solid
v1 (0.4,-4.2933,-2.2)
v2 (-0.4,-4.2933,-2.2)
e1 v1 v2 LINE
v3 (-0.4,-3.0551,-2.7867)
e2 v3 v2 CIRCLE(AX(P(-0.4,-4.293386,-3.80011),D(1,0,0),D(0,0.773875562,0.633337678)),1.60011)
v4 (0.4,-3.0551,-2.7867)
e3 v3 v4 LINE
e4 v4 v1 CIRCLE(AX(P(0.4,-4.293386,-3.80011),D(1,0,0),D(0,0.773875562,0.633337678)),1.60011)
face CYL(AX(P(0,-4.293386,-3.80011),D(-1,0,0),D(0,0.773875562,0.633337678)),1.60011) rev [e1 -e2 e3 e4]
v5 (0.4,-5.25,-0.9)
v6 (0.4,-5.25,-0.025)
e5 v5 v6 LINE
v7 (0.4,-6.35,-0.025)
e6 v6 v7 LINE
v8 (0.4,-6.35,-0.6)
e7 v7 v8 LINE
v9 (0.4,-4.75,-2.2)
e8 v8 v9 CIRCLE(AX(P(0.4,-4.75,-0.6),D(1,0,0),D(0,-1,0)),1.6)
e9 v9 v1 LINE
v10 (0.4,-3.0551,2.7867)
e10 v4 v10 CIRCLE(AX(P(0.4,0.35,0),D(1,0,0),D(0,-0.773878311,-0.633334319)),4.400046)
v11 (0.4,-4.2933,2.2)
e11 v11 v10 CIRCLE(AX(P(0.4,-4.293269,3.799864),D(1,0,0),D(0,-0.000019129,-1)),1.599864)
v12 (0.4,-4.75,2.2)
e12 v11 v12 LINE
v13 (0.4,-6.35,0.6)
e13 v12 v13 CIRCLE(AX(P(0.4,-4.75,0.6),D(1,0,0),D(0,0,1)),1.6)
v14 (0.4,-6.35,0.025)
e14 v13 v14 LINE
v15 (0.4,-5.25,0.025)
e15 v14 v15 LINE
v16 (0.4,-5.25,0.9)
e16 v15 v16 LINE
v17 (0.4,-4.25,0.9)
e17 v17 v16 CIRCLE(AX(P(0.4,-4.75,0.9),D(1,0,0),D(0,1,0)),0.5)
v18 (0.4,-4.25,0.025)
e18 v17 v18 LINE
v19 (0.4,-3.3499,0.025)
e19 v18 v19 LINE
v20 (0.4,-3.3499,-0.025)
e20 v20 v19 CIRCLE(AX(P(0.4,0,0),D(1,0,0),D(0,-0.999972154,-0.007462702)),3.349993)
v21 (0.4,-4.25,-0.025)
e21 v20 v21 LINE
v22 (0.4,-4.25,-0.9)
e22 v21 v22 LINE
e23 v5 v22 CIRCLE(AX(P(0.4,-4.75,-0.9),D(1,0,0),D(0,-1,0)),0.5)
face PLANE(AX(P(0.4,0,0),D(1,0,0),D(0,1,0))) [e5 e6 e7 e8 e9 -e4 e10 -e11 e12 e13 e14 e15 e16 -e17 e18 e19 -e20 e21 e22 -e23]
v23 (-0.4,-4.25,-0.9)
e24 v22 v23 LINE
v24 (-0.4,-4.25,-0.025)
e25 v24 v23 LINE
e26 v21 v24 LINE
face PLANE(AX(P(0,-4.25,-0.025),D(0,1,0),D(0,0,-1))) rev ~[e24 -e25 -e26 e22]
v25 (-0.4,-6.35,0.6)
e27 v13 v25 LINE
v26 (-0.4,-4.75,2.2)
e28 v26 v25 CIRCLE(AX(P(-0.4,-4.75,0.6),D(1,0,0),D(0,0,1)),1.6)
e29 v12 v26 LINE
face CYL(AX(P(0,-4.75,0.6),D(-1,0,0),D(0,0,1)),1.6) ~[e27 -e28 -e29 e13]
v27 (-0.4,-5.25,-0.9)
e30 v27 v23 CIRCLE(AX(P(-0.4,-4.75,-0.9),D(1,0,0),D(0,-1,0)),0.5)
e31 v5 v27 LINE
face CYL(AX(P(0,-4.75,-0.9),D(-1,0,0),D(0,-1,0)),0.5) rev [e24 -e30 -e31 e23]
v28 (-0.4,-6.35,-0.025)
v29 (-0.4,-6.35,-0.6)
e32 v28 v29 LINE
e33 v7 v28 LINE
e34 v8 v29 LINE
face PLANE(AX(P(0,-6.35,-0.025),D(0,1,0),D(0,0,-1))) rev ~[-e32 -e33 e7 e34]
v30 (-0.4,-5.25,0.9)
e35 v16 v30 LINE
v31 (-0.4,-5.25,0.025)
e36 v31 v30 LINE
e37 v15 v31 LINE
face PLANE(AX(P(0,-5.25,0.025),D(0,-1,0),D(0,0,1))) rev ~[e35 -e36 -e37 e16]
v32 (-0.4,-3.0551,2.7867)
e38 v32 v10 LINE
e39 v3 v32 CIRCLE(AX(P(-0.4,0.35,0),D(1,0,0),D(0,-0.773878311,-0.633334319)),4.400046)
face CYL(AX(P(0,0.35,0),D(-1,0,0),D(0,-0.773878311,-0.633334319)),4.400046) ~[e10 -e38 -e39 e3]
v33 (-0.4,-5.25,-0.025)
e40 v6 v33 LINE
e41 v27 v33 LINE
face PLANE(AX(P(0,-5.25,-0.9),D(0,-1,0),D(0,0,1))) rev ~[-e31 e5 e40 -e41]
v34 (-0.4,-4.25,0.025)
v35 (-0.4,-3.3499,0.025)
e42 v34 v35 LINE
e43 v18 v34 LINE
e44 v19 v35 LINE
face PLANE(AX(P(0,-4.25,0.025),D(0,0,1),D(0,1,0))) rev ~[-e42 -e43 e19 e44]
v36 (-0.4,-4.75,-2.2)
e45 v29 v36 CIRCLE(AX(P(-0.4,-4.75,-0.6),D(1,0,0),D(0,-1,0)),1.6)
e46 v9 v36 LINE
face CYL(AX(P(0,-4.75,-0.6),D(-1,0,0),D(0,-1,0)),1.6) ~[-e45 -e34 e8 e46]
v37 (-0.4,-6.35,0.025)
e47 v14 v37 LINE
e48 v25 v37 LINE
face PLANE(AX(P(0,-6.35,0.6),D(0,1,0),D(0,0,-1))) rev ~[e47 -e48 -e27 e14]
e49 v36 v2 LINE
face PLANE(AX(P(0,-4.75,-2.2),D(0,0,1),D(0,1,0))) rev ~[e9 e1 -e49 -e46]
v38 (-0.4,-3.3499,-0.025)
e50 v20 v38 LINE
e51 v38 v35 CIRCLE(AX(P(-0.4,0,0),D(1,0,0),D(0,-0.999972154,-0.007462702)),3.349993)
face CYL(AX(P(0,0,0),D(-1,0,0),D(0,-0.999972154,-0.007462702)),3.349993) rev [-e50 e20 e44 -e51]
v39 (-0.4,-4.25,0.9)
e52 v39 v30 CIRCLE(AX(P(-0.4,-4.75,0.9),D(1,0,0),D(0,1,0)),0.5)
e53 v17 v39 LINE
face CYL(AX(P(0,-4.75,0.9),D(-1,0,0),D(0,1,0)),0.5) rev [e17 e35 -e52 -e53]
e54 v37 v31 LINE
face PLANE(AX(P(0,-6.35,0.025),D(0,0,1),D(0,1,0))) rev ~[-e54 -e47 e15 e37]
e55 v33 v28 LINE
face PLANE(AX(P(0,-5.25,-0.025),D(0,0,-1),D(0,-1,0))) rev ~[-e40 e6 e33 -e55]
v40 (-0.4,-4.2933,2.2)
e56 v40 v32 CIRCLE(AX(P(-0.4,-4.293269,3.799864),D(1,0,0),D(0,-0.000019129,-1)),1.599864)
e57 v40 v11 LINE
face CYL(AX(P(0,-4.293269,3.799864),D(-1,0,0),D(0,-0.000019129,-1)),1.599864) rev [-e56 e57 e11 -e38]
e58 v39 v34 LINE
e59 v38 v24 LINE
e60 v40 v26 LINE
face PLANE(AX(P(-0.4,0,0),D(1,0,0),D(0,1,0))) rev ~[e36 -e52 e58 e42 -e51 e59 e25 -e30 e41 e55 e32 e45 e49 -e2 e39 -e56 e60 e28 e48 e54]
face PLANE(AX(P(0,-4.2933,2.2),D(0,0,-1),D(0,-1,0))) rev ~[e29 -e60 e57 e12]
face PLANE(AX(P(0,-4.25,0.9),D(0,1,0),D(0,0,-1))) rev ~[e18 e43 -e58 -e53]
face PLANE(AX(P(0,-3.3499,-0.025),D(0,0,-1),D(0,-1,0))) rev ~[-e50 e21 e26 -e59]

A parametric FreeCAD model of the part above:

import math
import FreeCAD as App
import Part
import Sketcher
from FreeCAD import Vector

doc = App.newDocument("Part")
body = doc.addObject("PartDesign::Body", "Body")

# Sketch on YZ plane
sketch1 = doc.addObject("Sketcher::SketchObject", "Sketch")
body.addObject(sketch1)
sketch1.AttachmentSupport = (doc.YZ_Plane, [""])
sketch1.MapMode = "FlatFace"
sketch1.addGeometry([
    Part.ArcOfCircle(Part.Circle(Vector(-4.29, -3.8, 0), Vector(0, 0, 1), 1.6), math.radians(39), math.radians(90)),  # 0
    Part.ArcOfCircle(Part.Circle(Vector(0.35, 0, 0), Vector(0, 0, 1), 4.4), math.radians(-141), math.radians(141)),  # 1
    Part.ArcOfCircle(Part.Circle(Vector(-4.29, 3.8, 0), Vector(0, 0, 1), 1.6), math.radians(-90), math.radians(-39)),  # 2
    Part.LineSegment(Vector(-4.29, 2.2, 0), Vector(-4.75, 2.2, 0)),  # 3
    Part.ArcOfCircle(Part.Circle(Vector(-4.75, 0.6, 0), Vector(0, 0, 1), 1.6), math.radians(90), math.radians(180)),  # 4
    Part.LineSegment(Vector(-6.35, 0.6, 0), Vector(-6.35, 0.03, 0)),  # 5
    Part.LineSegment(Vector(-6.35, 0.03, 0), Vector(-5.25, 0.03, 0)),  # 6
    Part.LineSegment(Vector(-5.25, 0.03, 0), Vector(-5.25, 0.9, 0)),  # 7
    Part.ArcOfCircle(Part.Circle(Vector(-4.75, 0.9, 0), Vector(0, 0, 1), 0.5), math.radians(0), math.radians(180)),  # 8
    Part.LineSegment(Vector(-4.25, 0.9, 0), Vector(-4.25, 0.03, 0)),  # 9
    Part.LineSegment(Vector(-4.25, 0.03, 0), Vector(-3.35, 0.03, 0)),  # 10
    Part.ArcOfCircle(Part.Circle(Vector(0, 0, 0), Vector(0, 0, 1), 3.35), math.radians(-180), math.radians(180)),  # 11
    Part.LineSegment(Vector(-3.35, -0.03, 0), Vector(-4.25, -0.03, 0)),  # 12
    Part.LineSegment(Vector(-4.25, -0.03, 0), Vector(-4.25, -0.9, 0)),  # 13
    Part.ArcOfCircle(Part.Circle(Vector(-4.75, -0.9, 0), Vector(0, 0, 1), 0.5), math.radians(180), math.radians(360)),  # 14
    Part.LineSegment(Vector(-5.25, -0.9, 0), Vector(-5.25, -0.03, 0)),  # 15
    Part.LineSegment(Vector(-5.25, -0.03, 0), Vector(-6.35, -0.03, 0)),  # 16
    Part.LineSegment(Vector(-6.35, -0.03, 0), Vector(-6.35, -0.6, 0)),  # 17
    Part.ArcOfCircle(Part.Circle(Vector(-4.75, -0.6, 0), Vector(0, 0, 1), 1.6), math.radians(180), math.radians(270)),  # 18
    Part.LineSegment(Vector(-4.75, -2.2, 0), Vector(-4.29, -2.2, 0)),  # 19
], False)
sketch1.addConstraint([
    Sketcher.Constraint("Tangent", 0, 1, 1, 1),
    Sketcher.Constraint("Tangent", 1, 2, 2, 2),
    Sketcher.Constraint("Tangent", 2, 1, 3, 1),
    Sketcher.Constraint("Tangent", 3, 2, 4, 1),
    Sketcher.Constraint("Tangent", 4, 2, 5, 1),
    Sketcher.Constraint("Coincident", 5, 2, 6, 1),
    Sketcher.Constraint("Coincident", 6, 2, 7, 1),
    Sketcher.Constraint("Tangent", 7, 2, 8, 2),
    Sketcher.Constraint("Tangent", 8, 1, 9, 1),
    Sketcher.Constraint("Coincident", 9, 2, 10, 1),
    Sketcher.Constraint("Coincident", 10, 2, 11, 2),
    Sketcher.Constraint("Coincident", 11, 1, 12, 1),
    Sketcher.Constraint("Coincident", 12, 2, 13, 1),
    Sketcher.Constraint("Tangent", 13, 2, 14, 2),
    Sketcher.Constraint("Tangent", 14, 1, 15, 1),
    Sketcher.Constraint("Coincident", 15, 2, 16, 1),
    Sketcher.Constraint("Coincident", 16, 2, 17, 1),
    Sketcher.Constraint("Tangent", 17, 2, 18, 1),
    Sketcher.Constraint("Tangent", 18, 2, 19, 1),
    Sketcher.Constraint("Tangent", 19, 2, 0, 2),
    Sketcher.Constraint("Horizontal", 3),
    Sketcher.Constraint("Vertical", 5),
    Sketcher.Constraint("Horizontal", 6),
    Sketcher.Constraint("Vertical", 7),
    Sketcher.Constraint("Vertical", 9),
    Sketcher.Constraint("Horizontal", 10),
    Sketcher.Constraint("Horizontal", 12),
    Sketcher.Constraint("Vertical", 13),
    Sketcher.Constraint("Vertical", 15),
    Sketcher.Constraint("Horizontal", 16),
    Sketcher.Constraint("Vertical", 17),
    Sketcher.Constraint("Horizontal", 19),
    Sketcher.Constraint("Coincident", 11, 3, -1, 1),
    Sketcher.Constraint("Equal", 0, 2),
    Sketcher.Constraint("Equal", 2, 4),
    Sketcher.Constraint("Equal", 8, 14),
    Sketcher.Constraint("Equal", 4, 18),
    Sketcher.Constraint("Symmetric", 0, 3, 2, 3, -1),
    Sketcher.Constraint("Symmetric", 8, 3, 14, 3, -1),
    Sketcher.Constraint("Symmetric", 5, 2, 16, 2, -1),
    Sketcher.Constraint("Horizontal", 6, 2, 9, 2),
    Sketcher.Constraint("Horizontal", 12, 2, 15, 2),
    Sketcher.Constraint("Vertical", 4, 3, 8, 3),
    Sketcher.Constraint("Radius", 0, 1.6),
    Sketcher.Constraint("Radius", 1, 4.4),
    Sketcher.Constraint("Radius", 8, 0.5),
    Sketcher.Constraint("Radius", 11, 3.35),
    Sketcher.Constraint("DistanceX", 10, 1, 10, 2, 0.9),
    Sketcher.Constraint("DistanceY", 0, 3, -1, 1, 3.8),
    Sketcher.Constraint("DistanceY", -1, 1, 8, 3, 0.9),
    Sketcher.Constraint("DistanceX", 4, 3, 1, 3, 5.1),
    Sketcher.Constraint("DistanceY", 5, 2, 5, 1, 0.575),
])
pad1 = doc.addObject("PartDesign::Pad", "Pad")
body.addObject(pad1)
pad1.Profile = sketch1
pad1.Length = 0.8
pad1.Midplane = True

doc.recompute()
